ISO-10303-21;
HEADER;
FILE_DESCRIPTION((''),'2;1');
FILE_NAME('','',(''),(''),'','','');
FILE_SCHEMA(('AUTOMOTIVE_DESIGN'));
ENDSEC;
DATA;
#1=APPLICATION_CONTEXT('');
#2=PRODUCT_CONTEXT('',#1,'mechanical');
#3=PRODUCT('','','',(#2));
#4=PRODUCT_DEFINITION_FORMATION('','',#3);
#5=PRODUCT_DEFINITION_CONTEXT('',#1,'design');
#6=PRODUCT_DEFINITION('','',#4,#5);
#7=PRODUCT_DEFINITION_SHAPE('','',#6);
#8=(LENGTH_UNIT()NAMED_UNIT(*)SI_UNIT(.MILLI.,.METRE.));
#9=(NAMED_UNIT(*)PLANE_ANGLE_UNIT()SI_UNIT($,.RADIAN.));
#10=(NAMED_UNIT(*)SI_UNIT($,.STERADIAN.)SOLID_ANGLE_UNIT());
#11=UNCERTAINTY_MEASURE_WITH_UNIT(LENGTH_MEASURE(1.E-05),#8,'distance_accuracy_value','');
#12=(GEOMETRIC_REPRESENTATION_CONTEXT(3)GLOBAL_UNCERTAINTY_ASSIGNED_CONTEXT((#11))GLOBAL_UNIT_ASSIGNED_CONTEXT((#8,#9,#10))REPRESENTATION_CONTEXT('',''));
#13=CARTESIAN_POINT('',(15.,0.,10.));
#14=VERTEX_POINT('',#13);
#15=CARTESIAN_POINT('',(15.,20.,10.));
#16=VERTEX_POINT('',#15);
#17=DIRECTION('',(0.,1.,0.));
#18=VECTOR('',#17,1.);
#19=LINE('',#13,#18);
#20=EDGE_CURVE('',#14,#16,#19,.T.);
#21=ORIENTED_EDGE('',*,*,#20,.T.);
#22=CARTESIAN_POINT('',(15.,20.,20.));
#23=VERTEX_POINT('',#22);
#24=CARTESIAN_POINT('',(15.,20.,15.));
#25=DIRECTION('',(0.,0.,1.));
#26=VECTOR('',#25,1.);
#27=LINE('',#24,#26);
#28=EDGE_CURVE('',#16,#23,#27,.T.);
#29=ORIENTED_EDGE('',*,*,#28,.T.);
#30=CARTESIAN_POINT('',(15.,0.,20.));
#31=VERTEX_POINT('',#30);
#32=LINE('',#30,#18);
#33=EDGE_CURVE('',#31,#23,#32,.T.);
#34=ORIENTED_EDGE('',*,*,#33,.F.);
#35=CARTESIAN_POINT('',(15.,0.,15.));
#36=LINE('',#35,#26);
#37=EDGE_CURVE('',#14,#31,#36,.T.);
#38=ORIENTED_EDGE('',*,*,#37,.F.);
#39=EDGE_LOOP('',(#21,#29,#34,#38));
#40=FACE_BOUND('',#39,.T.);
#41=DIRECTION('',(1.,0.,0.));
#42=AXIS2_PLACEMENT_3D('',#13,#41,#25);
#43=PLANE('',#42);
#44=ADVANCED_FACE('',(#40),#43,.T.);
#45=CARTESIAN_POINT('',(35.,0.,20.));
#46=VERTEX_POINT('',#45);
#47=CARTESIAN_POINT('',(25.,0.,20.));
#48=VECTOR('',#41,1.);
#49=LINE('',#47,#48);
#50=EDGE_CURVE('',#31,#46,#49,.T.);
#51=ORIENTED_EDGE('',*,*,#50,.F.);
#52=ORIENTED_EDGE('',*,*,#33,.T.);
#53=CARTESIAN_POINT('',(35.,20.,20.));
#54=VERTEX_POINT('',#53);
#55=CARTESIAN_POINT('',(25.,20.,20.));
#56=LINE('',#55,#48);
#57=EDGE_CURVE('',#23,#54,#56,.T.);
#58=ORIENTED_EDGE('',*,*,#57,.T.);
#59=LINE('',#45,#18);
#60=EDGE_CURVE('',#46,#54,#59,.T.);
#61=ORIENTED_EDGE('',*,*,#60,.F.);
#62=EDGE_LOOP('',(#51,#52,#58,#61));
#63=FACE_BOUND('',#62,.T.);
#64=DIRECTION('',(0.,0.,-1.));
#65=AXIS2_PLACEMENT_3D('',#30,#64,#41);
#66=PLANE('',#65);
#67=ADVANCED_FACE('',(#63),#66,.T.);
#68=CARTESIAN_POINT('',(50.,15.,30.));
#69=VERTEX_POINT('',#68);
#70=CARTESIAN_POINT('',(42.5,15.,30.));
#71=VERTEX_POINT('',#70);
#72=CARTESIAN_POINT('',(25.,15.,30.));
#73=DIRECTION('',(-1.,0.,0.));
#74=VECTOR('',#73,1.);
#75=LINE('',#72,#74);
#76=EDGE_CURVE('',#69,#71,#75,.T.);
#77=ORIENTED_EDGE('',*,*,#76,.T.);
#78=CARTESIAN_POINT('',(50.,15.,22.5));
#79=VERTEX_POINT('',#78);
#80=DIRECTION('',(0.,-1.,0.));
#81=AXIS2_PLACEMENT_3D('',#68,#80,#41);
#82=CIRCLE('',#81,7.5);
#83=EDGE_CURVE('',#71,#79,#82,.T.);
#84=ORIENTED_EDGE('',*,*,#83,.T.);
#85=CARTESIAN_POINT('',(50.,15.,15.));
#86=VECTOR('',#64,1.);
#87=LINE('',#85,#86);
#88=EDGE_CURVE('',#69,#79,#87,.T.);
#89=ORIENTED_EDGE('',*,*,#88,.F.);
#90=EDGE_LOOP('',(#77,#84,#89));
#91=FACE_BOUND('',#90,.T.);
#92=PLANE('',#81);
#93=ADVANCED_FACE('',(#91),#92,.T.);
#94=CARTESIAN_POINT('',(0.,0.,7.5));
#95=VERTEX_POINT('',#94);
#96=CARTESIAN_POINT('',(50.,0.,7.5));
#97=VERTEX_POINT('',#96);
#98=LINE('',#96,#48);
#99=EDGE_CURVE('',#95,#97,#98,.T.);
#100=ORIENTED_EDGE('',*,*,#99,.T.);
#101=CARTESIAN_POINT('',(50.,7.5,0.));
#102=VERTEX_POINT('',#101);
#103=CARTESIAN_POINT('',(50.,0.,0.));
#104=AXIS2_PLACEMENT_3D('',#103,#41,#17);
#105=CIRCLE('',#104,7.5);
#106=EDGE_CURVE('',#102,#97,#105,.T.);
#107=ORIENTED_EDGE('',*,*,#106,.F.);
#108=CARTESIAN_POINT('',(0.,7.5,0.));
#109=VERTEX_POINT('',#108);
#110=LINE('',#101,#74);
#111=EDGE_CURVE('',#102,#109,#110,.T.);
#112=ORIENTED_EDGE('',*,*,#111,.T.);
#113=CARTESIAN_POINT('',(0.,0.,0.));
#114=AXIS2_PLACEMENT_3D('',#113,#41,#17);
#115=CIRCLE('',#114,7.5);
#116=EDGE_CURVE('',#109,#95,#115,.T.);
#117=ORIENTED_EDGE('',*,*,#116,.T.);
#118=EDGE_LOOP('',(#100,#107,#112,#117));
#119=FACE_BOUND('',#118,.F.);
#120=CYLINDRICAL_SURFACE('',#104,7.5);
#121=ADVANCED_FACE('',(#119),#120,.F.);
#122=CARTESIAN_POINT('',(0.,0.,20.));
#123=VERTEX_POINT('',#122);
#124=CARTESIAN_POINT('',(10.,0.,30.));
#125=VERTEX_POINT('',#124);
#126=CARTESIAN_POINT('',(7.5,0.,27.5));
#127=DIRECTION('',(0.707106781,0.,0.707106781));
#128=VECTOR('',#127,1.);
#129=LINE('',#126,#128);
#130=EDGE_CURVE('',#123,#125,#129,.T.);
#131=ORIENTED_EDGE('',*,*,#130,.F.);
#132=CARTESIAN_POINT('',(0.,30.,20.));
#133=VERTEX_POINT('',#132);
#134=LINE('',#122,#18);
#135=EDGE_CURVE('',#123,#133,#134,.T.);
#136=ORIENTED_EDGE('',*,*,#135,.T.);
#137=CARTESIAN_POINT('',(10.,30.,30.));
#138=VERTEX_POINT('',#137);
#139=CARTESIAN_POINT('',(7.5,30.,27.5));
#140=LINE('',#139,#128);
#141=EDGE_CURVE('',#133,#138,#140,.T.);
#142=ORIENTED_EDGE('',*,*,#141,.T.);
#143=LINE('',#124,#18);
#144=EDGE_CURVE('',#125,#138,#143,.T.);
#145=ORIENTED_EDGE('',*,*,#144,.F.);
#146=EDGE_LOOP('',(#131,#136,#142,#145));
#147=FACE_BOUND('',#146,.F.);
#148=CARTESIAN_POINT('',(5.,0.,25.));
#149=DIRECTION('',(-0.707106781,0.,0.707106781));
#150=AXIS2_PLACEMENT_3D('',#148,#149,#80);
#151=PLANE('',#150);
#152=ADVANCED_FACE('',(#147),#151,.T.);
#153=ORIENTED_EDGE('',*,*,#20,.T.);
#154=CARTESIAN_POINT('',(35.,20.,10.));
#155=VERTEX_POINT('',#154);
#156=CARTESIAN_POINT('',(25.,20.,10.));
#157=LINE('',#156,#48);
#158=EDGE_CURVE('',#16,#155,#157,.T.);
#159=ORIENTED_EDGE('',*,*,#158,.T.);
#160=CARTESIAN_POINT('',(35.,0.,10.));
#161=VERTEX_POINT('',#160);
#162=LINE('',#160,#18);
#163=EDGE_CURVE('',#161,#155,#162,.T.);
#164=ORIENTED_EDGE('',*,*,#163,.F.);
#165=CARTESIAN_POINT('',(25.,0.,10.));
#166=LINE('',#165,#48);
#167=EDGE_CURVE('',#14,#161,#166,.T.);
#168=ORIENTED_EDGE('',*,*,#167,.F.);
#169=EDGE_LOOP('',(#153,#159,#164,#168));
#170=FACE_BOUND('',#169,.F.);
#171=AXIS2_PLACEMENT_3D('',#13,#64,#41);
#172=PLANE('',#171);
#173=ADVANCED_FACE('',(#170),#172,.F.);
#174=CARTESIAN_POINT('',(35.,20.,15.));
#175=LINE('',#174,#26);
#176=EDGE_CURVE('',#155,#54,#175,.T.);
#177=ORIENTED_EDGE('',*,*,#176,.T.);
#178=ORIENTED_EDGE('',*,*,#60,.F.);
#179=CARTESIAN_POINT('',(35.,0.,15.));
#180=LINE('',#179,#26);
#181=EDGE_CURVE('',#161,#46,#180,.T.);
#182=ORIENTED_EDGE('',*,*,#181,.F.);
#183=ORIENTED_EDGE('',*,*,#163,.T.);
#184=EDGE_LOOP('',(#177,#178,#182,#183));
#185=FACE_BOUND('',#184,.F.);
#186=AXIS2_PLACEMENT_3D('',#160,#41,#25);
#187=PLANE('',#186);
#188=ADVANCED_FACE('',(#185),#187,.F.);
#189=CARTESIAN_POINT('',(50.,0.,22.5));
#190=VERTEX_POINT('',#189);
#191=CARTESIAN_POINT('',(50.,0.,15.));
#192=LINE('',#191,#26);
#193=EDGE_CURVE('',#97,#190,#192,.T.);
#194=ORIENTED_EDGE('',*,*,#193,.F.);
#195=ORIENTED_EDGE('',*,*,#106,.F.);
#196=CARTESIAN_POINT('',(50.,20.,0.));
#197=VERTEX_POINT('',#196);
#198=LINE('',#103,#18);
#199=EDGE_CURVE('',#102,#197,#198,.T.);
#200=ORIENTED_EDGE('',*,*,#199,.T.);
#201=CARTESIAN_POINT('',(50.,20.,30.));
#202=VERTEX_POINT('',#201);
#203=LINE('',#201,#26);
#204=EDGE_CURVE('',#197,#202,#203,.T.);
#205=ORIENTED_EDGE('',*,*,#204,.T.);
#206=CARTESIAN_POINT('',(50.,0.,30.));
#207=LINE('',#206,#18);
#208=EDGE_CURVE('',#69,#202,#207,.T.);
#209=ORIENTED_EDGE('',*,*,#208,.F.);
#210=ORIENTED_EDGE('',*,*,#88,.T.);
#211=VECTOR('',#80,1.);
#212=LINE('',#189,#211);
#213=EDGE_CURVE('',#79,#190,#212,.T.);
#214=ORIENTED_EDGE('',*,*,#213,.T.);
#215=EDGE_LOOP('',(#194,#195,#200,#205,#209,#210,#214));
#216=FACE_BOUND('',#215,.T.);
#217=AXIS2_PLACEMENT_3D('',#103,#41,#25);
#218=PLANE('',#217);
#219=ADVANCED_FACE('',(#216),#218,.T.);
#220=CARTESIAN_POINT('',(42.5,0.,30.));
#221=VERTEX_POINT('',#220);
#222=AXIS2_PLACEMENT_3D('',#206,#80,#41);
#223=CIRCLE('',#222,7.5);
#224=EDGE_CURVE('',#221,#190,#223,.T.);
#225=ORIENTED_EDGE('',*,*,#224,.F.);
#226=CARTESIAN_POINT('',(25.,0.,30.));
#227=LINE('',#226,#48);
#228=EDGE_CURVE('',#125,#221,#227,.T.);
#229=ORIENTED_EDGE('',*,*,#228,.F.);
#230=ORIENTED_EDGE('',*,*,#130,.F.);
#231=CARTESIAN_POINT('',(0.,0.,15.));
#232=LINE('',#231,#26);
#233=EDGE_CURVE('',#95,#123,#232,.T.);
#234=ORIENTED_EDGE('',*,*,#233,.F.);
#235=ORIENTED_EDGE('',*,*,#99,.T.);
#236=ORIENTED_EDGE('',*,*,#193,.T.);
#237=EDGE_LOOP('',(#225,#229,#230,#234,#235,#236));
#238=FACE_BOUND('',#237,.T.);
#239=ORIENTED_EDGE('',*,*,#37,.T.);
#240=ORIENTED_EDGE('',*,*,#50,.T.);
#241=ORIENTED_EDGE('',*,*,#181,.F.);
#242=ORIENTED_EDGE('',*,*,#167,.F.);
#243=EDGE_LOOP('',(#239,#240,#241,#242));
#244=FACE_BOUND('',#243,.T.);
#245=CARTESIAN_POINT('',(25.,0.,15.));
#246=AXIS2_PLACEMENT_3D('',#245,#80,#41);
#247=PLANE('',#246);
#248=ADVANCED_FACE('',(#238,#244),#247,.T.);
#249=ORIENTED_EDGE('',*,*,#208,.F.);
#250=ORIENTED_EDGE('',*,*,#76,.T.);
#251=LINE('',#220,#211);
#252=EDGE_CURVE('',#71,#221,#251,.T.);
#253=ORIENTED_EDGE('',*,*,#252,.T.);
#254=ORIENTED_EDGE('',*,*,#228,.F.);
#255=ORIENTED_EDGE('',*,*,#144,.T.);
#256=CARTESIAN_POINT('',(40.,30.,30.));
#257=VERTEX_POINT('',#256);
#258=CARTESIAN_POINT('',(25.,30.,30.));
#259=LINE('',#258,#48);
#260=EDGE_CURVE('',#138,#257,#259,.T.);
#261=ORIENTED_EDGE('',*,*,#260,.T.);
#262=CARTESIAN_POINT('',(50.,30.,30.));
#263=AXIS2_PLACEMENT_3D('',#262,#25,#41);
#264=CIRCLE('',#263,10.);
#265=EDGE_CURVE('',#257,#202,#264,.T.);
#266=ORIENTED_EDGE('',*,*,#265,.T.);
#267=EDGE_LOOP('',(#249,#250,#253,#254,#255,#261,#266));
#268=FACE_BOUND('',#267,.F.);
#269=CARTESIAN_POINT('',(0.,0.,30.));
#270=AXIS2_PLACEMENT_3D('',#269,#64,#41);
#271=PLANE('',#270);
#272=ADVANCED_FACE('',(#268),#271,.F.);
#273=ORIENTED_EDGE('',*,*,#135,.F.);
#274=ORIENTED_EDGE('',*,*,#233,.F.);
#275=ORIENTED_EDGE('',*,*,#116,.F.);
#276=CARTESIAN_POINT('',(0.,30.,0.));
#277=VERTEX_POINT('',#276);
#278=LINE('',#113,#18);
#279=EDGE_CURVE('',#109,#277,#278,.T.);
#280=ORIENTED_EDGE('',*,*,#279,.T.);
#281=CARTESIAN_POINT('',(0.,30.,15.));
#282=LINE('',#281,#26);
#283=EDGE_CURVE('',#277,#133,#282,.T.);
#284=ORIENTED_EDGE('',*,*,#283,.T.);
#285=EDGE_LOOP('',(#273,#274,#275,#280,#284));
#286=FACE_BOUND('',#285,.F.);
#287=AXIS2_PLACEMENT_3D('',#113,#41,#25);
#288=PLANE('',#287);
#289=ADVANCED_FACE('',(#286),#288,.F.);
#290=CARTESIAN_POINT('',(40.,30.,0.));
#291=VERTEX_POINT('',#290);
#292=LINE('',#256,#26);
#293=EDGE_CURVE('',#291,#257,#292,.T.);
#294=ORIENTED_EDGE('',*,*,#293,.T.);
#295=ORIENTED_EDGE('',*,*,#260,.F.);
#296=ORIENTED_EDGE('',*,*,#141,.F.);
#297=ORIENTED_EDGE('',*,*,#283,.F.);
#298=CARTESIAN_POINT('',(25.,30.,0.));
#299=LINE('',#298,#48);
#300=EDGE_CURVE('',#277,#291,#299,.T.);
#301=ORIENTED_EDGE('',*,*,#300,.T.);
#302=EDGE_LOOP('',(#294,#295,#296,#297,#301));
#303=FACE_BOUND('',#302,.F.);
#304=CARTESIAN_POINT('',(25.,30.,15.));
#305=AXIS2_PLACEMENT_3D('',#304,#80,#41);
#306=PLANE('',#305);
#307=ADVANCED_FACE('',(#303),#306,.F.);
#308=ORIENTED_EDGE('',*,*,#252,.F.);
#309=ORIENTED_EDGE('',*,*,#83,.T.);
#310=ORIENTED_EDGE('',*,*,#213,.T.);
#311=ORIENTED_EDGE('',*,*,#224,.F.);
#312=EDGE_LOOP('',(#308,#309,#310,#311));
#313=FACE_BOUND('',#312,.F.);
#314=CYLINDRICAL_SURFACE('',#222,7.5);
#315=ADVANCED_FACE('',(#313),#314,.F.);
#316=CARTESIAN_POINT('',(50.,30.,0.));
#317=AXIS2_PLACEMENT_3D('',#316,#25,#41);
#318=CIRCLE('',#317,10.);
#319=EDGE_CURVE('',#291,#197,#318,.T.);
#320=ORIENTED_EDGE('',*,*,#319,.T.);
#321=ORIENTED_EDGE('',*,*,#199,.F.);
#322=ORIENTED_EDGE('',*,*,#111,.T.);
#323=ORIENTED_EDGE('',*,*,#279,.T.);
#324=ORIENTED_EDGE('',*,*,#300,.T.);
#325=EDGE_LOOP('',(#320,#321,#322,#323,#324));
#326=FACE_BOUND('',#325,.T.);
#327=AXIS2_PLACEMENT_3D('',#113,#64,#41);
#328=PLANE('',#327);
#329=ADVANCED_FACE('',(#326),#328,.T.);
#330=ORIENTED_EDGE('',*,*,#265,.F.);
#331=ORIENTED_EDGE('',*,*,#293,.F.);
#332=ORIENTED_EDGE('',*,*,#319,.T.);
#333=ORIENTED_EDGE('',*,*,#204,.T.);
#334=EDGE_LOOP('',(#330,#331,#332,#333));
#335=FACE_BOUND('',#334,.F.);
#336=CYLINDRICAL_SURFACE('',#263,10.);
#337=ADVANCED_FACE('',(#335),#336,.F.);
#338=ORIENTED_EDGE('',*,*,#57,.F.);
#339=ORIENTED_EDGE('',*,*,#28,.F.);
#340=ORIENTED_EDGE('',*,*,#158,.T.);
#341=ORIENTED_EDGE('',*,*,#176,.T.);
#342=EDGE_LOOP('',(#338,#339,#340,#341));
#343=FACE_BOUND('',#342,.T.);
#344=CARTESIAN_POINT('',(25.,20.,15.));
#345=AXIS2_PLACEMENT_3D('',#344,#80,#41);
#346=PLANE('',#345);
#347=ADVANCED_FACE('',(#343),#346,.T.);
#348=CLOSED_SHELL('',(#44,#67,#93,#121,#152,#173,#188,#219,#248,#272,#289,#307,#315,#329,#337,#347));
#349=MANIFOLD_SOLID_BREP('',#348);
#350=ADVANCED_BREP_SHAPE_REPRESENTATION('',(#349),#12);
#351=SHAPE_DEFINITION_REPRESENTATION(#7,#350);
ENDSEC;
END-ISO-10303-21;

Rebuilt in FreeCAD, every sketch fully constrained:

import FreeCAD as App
import Part
import Sketcher

V = App.Vector


def edges_at(feature, points):
    """Names of the edges that pass closest to the given points."""
    edges = feature.Shape.Edges
    near = lambda p: min(range(len(edges)), key=lambda i: edges[i].distToShape(Part.Vertex(*p))[0])
    return sorted({f"Edge{near(p) + 1}" for p in points})

doc = App.newDocument("Part")
params = doc.addObject("Spreadsheet::Sheet", "Params")
for row, (alias, value) in enumerate([
    ("sketch1_width", "50 mm"),
    ("sketch1_height", "30 mm"),
    ("pad1_length", "30 mm"),
    ("chamfer_size", "10 mm"),
    ("sketch2_width", "20 mm"),
    ("sketch2_height", "10 mm"),
    ("pocket1_length", "20 mm"),
    ("sketch3_diameter", "15 mm"),
    ("pocket2_length", "15 mm"),
    ("sketch4_diameter", "20 mm"),
    ("sketch5_diameter", "15 mm"),
], start=1):
    params.set(f"A{row}", alias)
    params.set(f"B{row}", "=" + value)
    params.setAlias(f"B{row}", alias)

body = doc.addObject("PartDesign::Body", "Body")

# Sketch on XZ plane
sketch1 = body.newObject("Sketcher::SketchObject", "Sketch")
sketch1.AttachmentSupport = (doc.getObject("XZ_Plane"), [""])
sketch1.MapMode = "FlatFace"
sketch1.addGeometry([
    Part.LineSegment(V(0, 30, 0), V(0, 0, 0)),
    Part.LineSegment(V(0, 0, 0), V(50, 0, 0)),
    Part.LineSegment(V(50, 0, 0), V(50, 30, 0)),
    Part.LineSegment(V(50, 30, 0), V(0, 30, 0)),
], False)
sketch1.addConstraint([
    Sketcher.Constraint("Coincident", 0, 2, 1, 1),
    Sketcher.Constraint("Coincident", 1, 2, 2, 1),
    Sketcher.Constraint("Coincident", 2, 2, 3, 1),
    Sketcher.Constraint("Coincident", 3, 2, 0, 1),
    Sketcher.Constraint("Vertical", 0),
    Sketcher.Constraint("Horizontal", 1),
    Sketcher.Constraint("Vertical", 2),
    Sketcher.Constraint("Horizontal", 3),
    Sketcher.Constraint("Coincident", 0, 2, -1, 1),
    Sketcher.Constraint("DistanceX", 1, 1, 1, 2, 50.0),
    Sketcher.Constraint("DistanceY", 0, 2, 0, 1, 30.0),
])
sketch1.setExpression("Constraints[9]", "Params.sketch1_width")
sketch1.setExpression("Constraints[10]", "Params.sketch1_height")
pad1 = body.newObject("PartDesign::Pad", "Pad")
pad1.Profile = sketch1
pad1.setExpression("Length", "Params.pad1_length")
pad1.Reversed = True
doc.recompute()

chamfer = body.newObject("PartDesign::Chamfer", "Chamfer")
chamfer.Base = (pad1, edges_at(pad1, [(0, 15, 30)]))
chamfer.setExpression("Size", "Params.chamfer_size")

# Sketch on XZ plane
sketch2 = body.newObject("Sketcher::SketchObject", "Sketch001")
sketch2.AttachmentSupport = (doc.getObject("XZ_Plane"), [""])
sketch2.MapMode = "FlatFace"
sketch2.addGeometry([
    Part.LineSegment(V(15, 20, 0), V(15, 10, 0)),
    Part.LineSegment(V(15, 10, 0), V(35, 10, 0)),
    Part.LineSegment(V(35, 10, 0), V(35, 20, 0)),
    Part.LineSegment(V(35, 20, 0), V(15, 20, 0)),
], False)
sketch2.addConstraint([
    Sketcher.Constraint("Coincident", 0, 2, 1, 1),
    Sketcher.Constraint("Coincident", 1, 2, 2, 1),
    Sketcher.Constraint("Coincident", 2, 2, 3, 1),
    Sketcher.Constraint("Coincident", 3, 2, 0, 1),
    Sketcher.Constraint("Vertical", 0),
    Sketcher.Constraint("Horizontal", 1),
    Sketcher.Constraint("Vertical", 2),
    Sketcher.Constraint("Horizontal", 3),
    Sketcher.Constraint("DistanceX", 1, 1, 1, 2, 20.0),
    Sketcher.Constraint("DistanceY", 0, 2, 0, 1, 10.0),
    Sketcher.Constraint("DistanceX", -1, 1, 0, 2, 15.0),
    Sketcher.Constraint("DistanceY", -1, 1, 0, 2, 10.0),
])
sketch2.setExpression("Constraints[8]", "Params.sketch2_width")
sketch2.setExpression("Constraints[9]", "Params.sketch2_height")
pocket1 = body.newObject("PartDesign::Pocket", "Pocket")
pocket1.Profile = sketch2
pocket1.setExpression("Length", "Params.pocket1_length")

# Sketch on XZ plane
sketch3 = body.newObject("Sketcher::SketchObject", "Sketch002")
sketch3.AttachmentSupport = (doc.getObject("XZ_Plane"), [""])
sketch3.MapMode = "FlatFace"
sketch3.addGeometry(Part.Circle(V(50, 30, 0), V(0, 0, 1), 8), False)
sketch3.addConstraint([
    Sketcher.Constraint("Diameter", 0, 15.0),
    Sketcher.Constraint("DistanceX", -1, 1, 0, 3, 50.0),
    Sketcher.Constraint("DistanceY", -1, 1, 0, 3, 30.0),
])
sketch3.setExpression("Constraints[0]", "Params.sketch3_diameter")
pocket2 = body.newObject("PartDesign::Pocket", "Pocket001")
pocket2.Profile = sketch3
pocket2.setExpression("Length", "Params.pocket2_length")

# Sketch on XY plane
sketch4 = body.newObject("Sketcher::SketchObject", "Sketch003")
sketch4.AttachmentSupport = (doc.getObject("XY_Plane"), [""])
sketch4.MapMode = "FlatFace"
sketch4.AttachmentOffset = App.Placement(V(0, 0, 30), App.Rotation())
sketch4.addGeometry(Part.Circle(V(50, 30, 0), V(0, 0, 1), 10), False)
sketch4.addConstraint([
    Sketcher.Constraint("Diameter", 0, 20.0),
    Sketcher.Constraint("DistanceX", -1, 1, 0, 3, 50.0),
    Sketcher.Constraint("DistanceY", -1, 1, 0, 3, 30.0),
])
sketch4.setExpression("Constraints[0]", "Params.sketch4_diameter")
pocket3 = body.newObject("PartDesign::Pocket", "Pocket002")
pocket3.Profile = sketch4
pocket3.Type = "ThroughAll"

# Sketch on YZ plane
sketch5 = body.newObject("Sketcher::SketchObject", "Sketch004")
sketch5.AttachmentSupport = (doc.getObject("YZ_Plane"), [""])
sketch5.MapMode = "FlatFace"
sketch5.AttachmentOffset = App.Placement(V(0, 0, 50), App.Rotation())
sketch5.addGeometry(Part.Circle(V(0, 0, 0), V(0, 0, 1), 8), False)
sketch5.addConstraint([
    Sketcher.Constraint("Coincident", 0, 3, -1, 1),
    Sketcher.Constraint("Diameter", 0, 15.0),
])
sketch5.setExpression("Constraints[1]", "Params.sketch5_diameter")
pocket4 = body.newObject("PartDesign::Pocket", "Pocket003")
pocket4.Profile = sketch5
pocket4.Type = "ThroughAll"

doc.recompute()
